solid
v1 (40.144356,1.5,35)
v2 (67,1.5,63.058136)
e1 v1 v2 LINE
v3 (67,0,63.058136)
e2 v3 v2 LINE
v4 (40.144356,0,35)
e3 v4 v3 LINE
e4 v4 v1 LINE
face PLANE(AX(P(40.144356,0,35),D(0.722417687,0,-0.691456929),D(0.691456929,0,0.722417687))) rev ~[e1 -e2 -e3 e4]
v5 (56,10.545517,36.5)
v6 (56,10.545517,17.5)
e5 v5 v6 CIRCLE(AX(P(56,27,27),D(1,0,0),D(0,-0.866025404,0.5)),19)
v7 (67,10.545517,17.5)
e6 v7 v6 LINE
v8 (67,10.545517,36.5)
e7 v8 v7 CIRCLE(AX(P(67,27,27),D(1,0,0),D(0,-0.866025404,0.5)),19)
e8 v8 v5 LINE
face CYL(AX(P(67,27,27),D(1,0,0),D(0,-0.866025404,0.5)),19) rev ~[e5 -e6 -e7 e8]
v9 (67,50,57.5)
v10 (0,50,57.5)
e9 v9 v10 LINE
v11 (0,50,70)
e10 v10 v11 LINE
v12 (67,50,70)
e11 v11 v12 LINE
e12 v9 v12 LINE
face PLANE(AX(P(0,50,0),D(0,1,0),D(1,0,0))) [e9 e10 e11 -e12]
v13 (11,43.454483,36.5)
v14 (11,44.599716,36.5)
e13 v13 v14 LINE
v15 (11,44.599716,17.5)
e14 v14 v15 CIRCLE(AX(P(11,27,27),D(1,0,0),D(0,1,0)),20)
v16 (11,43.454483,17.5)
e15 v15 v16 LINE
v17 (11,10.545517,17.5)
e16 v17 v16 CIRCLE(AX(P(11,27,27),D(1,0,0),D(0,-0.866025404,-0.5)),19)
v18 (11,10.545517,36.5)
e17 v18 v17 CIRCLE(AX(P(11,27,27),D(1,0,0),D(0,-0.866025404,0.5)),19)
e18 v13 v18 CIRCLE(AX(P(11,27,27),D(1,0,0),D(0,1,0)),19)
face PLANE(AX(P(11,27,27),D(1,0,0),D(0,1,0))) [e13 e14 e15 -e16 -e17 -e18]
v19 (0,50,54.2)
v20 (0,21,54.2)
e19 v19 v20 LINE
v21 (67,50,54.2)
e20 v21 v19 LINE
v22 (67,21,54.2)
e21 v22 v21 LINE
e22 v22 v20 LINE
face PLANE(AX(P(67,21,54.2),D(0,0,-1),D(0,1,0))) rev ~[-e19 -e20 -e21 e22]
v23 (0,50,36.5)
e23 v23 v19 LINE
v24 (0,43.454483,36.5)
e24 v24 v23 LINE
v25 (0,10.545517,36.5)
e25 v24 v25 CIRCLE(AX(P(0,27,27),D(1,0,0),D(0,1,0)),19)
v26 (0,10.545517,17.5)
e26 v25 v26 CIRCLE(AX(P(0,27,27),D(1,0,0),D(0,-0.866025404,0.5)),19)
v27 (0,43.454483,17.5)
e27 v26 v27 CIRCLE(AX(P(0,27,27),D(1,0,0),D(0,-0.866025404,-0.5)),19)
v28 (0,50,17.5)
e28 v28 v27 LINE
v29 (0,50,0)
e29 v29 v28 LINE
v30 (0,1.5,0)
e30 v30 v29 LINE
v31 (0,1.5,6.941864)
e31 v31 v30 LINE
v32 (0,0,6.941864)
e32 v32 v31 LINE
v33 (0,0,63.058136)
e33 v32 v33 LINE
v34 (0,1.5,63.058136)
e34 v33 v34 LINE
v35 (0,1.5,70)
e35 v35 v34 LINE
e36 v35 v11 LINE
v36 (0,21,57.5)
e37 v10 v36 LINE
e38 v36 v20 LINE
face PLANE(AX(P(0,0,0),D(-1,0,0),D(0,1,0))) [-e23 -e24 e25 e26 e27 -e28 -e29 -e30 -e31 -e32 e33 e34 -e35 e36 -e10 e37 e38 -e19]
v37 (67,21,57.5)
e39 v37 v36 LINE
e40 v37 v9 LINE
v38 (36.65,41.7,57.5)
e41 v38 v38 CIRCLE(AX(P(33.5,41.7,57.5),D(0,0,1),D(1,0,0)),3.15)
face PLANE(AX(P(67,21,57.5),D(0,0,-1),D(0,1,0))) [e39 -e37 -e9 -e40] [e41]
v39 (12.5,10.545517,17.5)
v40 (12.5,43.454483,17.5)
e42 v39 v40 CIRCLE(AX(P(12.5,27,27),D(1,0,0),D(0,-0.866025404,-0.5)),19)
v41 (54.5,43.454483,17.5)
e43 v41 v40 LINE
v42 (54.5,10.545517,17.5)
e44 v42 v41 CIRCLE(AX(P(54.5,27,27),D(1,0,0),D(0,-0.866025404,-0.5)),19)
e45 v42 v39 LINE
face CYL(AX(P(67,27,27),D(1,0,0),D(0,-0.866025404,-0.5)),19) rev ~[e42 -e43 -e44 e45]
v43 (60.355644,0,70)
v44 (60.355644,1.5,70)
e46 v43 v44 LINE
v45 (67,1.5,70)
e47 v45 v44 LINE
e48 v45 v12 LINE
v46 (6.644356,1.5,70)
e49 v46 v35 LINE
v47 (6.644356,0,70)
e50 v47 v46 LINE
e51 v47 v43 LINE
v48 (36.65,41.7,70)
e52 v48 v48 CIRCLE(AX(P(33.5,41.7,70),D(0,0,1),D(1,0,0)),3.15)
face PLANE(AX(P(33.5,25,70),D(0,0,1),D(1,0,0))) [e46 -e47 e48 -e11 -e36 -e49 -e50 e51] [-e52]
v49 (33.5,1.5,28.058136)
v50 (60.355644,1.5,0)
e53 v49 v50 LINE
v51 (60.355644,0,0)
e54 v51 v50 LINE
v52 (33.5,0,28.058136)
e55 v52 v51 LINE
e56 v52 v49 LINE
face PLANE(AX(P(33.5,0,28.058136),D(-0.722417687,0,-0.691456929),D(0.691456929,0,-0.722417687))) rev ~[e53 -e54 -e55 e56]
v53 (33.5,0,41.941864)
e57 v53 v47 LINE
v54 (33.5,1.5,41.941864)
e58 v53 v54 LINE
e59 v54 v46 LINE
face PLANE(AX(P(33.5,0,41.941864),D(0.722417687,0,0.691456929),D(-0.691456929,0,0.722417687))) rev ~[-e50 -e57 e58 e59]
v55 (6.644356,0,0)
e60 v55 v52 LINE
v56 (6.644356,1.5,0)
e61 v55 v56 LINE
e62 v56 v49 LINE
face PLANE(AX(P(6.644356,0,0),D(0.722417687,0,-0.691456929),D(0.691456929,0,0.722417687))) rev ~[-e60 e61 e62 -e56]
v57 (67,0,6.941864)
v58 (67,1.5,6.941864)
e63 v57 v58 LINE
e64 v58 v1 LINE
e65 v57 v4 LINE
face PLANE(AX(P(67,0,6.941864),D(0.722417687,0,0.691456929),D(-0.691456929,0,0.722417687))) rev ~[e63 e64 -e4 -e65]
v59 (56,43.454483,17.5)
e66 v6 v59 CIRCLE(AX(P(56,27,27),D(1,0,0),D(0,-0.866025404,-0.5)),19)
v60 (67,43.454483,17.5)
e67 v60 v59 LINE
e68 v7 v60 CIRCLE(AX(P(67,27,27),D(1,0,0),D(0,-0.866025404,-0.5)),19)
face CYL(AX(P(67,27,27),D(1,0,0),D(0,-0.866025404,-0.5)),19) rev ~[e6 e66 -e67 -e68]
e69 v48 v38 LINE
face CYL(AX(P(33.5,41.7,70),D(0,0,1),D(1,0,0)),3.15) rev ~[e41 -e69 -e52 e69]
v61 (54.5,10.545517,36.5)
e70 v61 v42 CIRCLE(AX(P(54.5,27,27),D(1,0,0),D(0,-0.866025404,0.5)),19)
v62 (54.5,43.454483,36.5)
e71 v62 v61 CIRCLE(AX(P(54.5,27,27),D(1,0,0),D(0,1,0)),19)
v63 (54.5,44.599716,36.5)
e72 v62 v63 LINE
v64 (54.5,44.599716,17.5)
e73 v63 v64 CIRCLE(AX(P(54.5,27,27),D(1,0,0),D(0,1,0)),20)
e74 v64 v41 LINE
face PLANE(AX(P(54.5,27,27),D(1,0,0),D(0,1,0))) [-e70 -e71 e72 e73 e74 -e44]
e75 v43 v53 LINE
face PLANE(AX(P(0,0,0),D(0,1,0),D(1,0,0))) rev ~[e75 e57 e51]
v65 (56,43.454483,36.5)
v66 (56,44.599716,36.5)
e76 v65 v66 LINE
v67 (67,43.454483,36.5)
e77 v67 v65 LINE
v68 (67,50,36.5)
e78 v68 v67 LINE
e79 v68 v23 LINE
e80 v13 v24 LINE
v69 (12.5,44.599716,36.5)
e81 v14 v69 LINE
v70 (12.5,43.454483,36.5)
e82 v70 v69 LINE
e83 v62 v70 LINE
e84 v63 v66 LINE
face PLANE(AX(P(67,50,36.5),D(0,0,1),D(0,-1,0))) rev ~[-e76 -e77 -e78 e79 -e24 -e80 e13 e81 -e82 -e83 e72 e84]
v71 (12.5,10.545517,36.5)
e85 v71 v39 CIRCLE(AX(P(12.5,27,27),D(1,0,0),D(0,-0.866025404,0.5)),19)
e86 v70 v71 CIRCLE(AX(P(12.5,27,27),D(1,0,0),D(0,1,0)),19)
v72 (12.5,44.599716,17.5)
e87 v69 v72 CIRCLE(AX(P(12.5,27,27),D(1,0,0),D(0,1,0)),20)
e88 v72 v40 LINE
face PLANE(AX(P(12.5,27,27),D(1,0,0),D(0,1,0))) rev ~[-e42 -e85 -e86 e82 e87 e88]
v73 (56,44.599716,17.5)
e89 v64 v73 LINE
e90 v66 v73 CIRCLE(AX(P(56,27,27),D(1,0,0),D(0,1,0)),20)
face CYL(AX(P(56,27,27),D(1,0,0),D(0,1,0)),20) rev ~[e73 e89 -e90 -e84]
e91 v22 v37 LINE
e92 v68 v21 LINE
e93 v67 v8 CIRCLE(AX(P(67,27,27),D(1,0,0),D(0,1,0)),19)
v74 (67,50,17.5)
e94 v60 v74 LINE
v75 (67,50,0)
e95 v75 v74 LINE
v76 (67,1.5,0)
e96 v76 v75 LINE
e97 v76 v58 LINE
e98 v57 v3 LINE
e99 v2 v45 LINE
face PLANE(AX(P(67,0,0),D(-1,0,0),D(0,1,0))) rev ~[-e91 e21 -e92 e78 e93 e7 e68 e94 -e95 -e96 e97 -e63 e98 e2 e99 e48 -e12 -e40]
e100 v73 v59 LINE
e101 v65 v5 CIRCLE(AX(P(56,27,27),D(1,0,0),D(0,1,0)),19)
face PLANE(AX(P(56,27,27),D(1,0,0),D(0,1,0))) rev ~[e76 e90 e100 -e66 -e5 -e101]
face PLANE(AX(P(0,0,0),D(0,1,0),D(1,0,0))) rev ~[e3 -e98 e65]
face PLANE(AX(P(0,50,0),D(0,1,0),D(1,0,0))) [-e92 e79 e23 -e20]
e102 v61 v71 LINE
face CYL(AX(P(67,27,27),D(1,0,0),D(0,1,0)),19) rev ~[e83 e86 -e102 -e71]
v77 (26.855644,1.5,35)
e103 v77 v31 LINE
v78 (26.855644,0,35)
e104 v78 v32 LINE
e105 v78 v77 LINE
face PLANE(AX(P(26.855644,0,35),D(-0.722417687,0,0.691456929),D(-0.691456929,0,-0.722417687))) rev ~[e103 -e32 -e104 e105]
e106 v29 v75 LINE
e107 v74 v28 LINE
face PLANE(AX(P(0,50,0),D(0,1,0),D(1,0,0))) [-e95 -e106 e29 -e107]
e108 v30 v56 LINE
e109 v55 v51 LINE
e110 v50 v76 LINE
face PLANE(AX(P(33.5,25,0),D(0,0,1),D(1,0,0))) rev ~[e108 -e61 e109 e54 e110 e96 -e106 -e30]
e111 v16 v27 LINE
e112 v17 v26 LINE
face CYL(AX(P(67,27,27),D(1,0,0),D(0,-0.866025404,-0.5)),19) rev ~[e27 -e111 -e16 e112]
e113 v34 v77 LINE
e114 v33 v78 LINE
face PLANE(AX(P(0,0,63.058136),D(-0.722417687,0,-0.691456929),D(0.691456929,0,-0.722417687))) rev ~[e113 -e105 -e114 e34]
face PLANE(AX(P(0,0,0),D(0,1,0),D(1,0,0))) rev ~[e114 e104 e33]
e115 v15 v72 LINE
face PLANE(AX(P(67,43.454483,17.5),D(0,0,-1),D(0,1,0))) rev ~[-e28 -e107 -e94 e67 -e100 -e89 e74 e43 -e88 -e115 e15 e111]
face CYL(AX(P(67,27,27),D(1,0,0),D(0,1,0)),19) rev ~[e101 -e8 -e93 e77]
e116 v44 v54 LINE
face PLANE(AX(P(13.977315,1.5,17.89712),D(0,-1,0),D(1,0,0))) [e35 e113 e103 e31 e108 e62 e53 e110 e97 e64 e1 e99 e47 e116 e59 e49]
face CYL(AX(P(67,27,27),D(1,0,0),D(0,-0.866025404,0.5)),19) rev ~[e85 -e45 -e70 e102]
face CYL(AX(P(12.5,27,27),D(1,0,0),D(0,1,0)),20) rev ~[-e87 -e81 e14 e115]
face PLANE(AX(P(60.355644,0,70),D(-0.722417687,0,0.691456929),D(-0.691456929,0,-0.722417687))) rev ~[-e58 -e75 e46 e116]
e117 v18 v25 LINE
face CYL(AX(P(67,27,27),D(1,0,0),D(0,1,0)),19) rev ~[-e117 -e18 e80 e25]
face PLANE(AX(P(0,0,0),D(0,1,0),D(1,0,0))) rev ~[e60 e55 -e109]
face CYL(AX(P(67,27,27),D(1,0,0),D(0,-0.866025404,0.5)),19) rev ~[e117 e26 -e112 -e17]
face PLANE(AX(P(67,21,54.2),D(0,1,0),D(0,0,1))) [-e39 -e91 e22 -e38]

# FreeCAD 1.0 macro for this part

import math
import FreeCAD as App
import Part
import Sketcher

V = App.Vector
Q = App.Units.Quantity


def add_polygon(sketch, points):
    """Adds a closed chain of lines whose ends are joined by coincident constraints."""
    first, n = sketch.GeometryCount, len(points)
    for a, b in zip(points, points[1:] + points[:1]):
        sketch.addGeometry(Part.LineSegment(App.Vector(*a, 0), App.Vector(*b, 0)), False)
    for i in range(n):
        sketch.addConstraint(Sketcher.Constraint("Coincident", first + i, 2, first + (i + 1) % n, 1))

doc = App.newDocument("Part")
body = doc.addObject("PartDesign::Body", "Body")

# Sketch on XY plane
sketch1 = body.newObject("Sketcher::SketchObject", "Sketch")
sketch1.AttachmentSupport = (doc.getObject("XY_Plane"), [""])
sketch1.MapMode = "FlatFace"
add_polygon(sketch1, [(0, 50), (0, 0), (67, 0), (67, 50)])  # lines 0-3
sketch1.addConstraint([
    Sketcher.Constraint("Vertical", 0),
    Sketcher.Constraint("Horizontal", 1),
    Sketcher.Constraint("Vertical", 2),
    Sketcher.Constraint("Horizontal", 3),
    Sketcher.Constraint("Coincident", 0, 2, -1, 1),
    Sketcher.Constraint("DistanceX", 1, 1, 1, 2, Q("67 mm")),
    Sketcher.Constraint("DistanceY", 0, 2, 0, 1, Q("50 mm")),
])
pad1 = body.newObject("PartDesign::Pad", "Pad")
pad1.Profile = sketch1
pad1.Length = 70

# Sketch on YZ plane
sketch2 = body.newObject("Sketcher::SketchObject", "Sketch001")
sketch2.AttachmentSupport = (doc.getObject("YZ_Plane"), [""])
sketch2.MapMode = "FlatFace"
sketch2.AttachmentOffset = App.Placement(V(0, 0, 67), App.Rotation())
add_polygon(sketch2, [(21, 57.5), (21, 54.2), (50, 54.2), (50, 57.5)])  # lines 0-3
sketch2.addConstraint([
    Sketcher.Constraint("Vertical", 0),
    Sketcher.Constraint("Horizontal", 1),
    Sketcher.Constraint("Vertical", 2),
    Sketcher.Constraint("Horizontal", 3),
    Sketcher.Constraint("DistanceX", 1, 1, 1, 2, Q("29 mm")),
    Sketcher.Constraint("DistanceY", 0, 2, 0, 1, Q("3.3 mm")),
    Sketcher.Constraint("DistanceX", -1, 1, 0, 2, Q("21 mm")),
    Sketcher.Constraint("DistanceY", -1, 1, 0, 2, Q("54.2 mm")),
])
pocket1 = body.newObject("PartDesign::Pocket", "Pocket")
pocket1.Profile = sketch2
pocket1.Type = "ThroughAll"

# Sketch on XY plane
sketch3 = body.newObject("Sketcher::SketchObject", "Sketch002")
sketch3.AttachmentSupport = (doc.getObject("XY_Plane"), [""])
sketch3.MapMode = "FlatFace"
sketch3.AttachmentOffset = App.Placement(V(0, 0, 70), App.Rotation())
sketch3.addGeometry(Part.Circle(V(33.5, 41.7, 0), V(0, 0, 1), 3.1), False)
sketch3.addConstraint([
    Sketcher.Constraint("Diameter", 0, Q("6.3 mm")),
    Sketcher.Constraint("DistanceX", -1, 1, 0, 3, Q("33.5 mm")),
    Sketcher.Constraint("DistanceY", -1, 1, 0, 3, Q("41.7 mm")),
])
pocket2 = body.newObject("PartDesign::Pocket", "Pocket001")
pocket2.Profile = sketch3
pocket2.Length = 12.5

# Sketch on XZ plane
sketch4 = body.newObject("Sketcher::SketchObject", "Sketch003")
sketch4.AttachmentSupport = (doc.getObject("XZ_Plane"), [""])
sketch4.MapMode = "FlatFace"
add_polygon(sketch4, [(0, 7), (0, 0), (7, 0), (34, 28), (60, 0), (67, 0), (67, 7), (40, 35), (67, 63), (67, 70), (60, 70), (34, 42), (7, 70), (0, 70), (0, 63), (27, 35)])  # lines 0-15
sketch4.addConstraint([
    Sketcher.Constraint("Vertical", 0),
    Sketcher.Constraint("Horizontal", 1),
    Sketcher.Constraint("Horizontal", 4),
    Sketcher.Constraint("Vertical", 5),
    Sketcher.Constraint("Vertical", 8),
    Sketcher.Constraint("Horizontal", 9),
    Sketcher.Constraint("Horizontal", 12),
    Sketcher.Constraint("Vertical", 13),
    Sketcher.Constraint("Coincident", 0, 2, -1, 1),
    Sketcher.Constraint("PointOnObject", 3, 2, -1),
    Sketcher.Constraint("PointOnObject", 12, 2, -2),
    Sketcher.Constraint("Parallel", 3, 6),
    Sketcher.Constraint("Parallel", 2, 7),
    Sketcher.Constraint("Parallel", 7, 10),
    Sketcher.Constraint("Parallel", 6, 11),
    Sketcher.Constraint("Parallel", 11, 14),
    Sketcher.Constraint("Parallel", 10, 15),
    Sketcher.Constraint("Horizontal", 9, 2, 11, 2),
    Sketcher.Constraint("Horizontal", 7, 2, 13, 2),
    Sketcher.Constraint("Horizontal", 6, 2, 14, 2),
    Sketcher.Constraint("Horizontal", 5, 2, 15, 2),
    Sketcher.Constraint("Vertical", 5, 2, 7, 2),
    Sketcher.Constraint("Vertical", 3, 2, 9, 2),
    Sketcher.Constraint("Vertical", 2, 2, 10, 2),
    Sketcher.Constraint("Equal", 1, 4),
    Sketcher.Constraint("Equal", 5, 8),
    Sketcher.Constraint("Equal", 3, 6),
    Sketcher.Constraint("DistanceX", -1, 1, 4, 2, Q("67 mm")),
    Sketcher.Constraint("DistanceY", -1, 1, 6, 2, Q("35 mm")),
    Sketcher.Constraint("DistanceX", 1, 1, 1, 2, Q("6.644356 mm")),
    Sketcher.Constraint("DistanceY", 0, 2, 0, 1, Q("6.941864 mm")),
])
pocket3 = body.newObject("PartDesign::Pocket", "Pocket002")
pocket3.Profile = sketch4
pocket3.Length = 1.5

# Sketch on YZ plane
sketch5 = body.newObject("Sketcher::SketchObject", "Sketch004")
sketch5.AttachmentSupport = (doc.getObject("YZ_Plane"), [""])
sketch5.MapMode = "FlatFace"
sketch5.AttachmentOffset = App.Placement(V(0, 0, 67), App.Rotation())
sketch5.addGeometry([
    Part.ArcOfCircle(Part.Circle(V(27, 27, 0), V(0, 0, 1), 19), math.radians(150), math.radians(210)),  # 0
    Part.ArcOfCircle(Part.Circle(V(27, 27, 0), V(0, 0, 1), 19), math.radians(-150), math.radians(-30)),  # 1
    Part.LineSegment(V(43, 18, 0), V(50, 18, 0)),  # 2
    Part.LineSegment(V(50, 18, 0), V(50, 36, 0)),  # 3
    Part.LineSegment(V(50, 36, 0), V(43, 36, 0)),  # 4
    Part.ArcOfCircle(Part.Circle(V(27, 27, 0), V(0, 0, 1), 19), math.radians(30), math.radians(150)),  # 5
], False)
sketch5.addConstraint([
    Sketcher.Constraint("Tangent", 0, 2, 1, 1),
    Sketcher.Constraint("Coincident", 1, 2, 2, 1),
    Sketcher.Constraint("Coincident", 2, 2, 3, 1),
    Sketcher.Constraint("Coincident", 3, 2, 4, 1),
    Sketcher.Constraint("Coincident", 4, 2, 5, 1),
    Sketcher.Constraint("Tangent", 5, 2, 0, 1),
    Sketcher.Constraint("Horizontal", 2),
    Sketcher.Constraint("Vertical", 3),
    Sketcher.Constraint("Horizontal", 4),
    Sketcher.Constraint("Equal", 0, 1),
    Sketcher.Constraint("Equal", 1, 5),
    Sketcher.Constraint("Horizontal", 0, 2, 1, 2),
    Sketcher.Constraint("Horizontal", 4, 2, 5, 2),
    Sketcher.Constraint("Vertical", 1, 2, 4, 2),
    Sketcher.Constraint("Radius", 0, Q("19 mm")),
    Sketcher.Constraint("DistanceY", 3, 1, 3, 2, Q("19 mm")),
    Sketcher.Constraint("DistanceX", -1, 1, 0, 3, Q("27 mm")),
    Sketcher.Constraint("DistanceY", -1, 1, 0, 3, Q("27 mm")),
    Sketcher.Constraint("DistanceX", -1, 1, 2, 2, Q("50 mm")),
])
pocket4 = body.newObject("PartDesign::Pocket", "Pocket003")
pocket4.Profile = sketch5
pocket4.Type = "ThroughAll"

# Sketch on YZ plane
sketch6 = body.newObject("Sketcher::SketchObject", "Sketch005")
sketch6.AttachmentSupport = (doc.getObject("YZ_Plane"), [""])
sketch6.MapMode = "FlatFace"
sketch6.AttachmentOffset = App.Placement(V(0, 0, 56), App.Rotation())
sketch6.addGeometry(Part.Circle(V(27, 27, 0), V(0, 0, 1), 20), False)
sketch6.addConstraint([
    Sketcher.Constraint("Diameter", 0, Q("40 mm")),
    Sketcher.Constraint("DistanceX", -1, 1, 0, 3, Q("27 mm")),
    Sketcher.Constraint("DistanceY", -1, 1, 0, 3, Q("27 mm")),
])
pocket5 = body.newObject("PartDesign::Pocket", "Pocket004")
pocket5.Profile = sketch6
pocket5.Length = 1.5

# Sketch on YZ plane
sketch7 = body.newObject("Sketcher::SketchObject", "Sketch006")
sketch7.AttachmentSupport = (doc.getObject("YZ_Plane"), [""])
sketch7.MapMode = "FlatFace"
sketch7.AttachmentOffset = App.Placement(V(0, 0, 12.5), App.Rotation())
sketch7.addGeometry(Part.Circle(V(27, 27, 0), V(0, 0, 1), 20), False)
sketch7.addConstraint([
    Sketcher.Constraint("Diameter", 0, Q("40 mm")),
    Sketcher.Constraint("DistanceX", -1, 1, 0, 3, Q("27 mm")),
    Sketcher.Constraint("DistanceY", -1, 1, 0, 3, Q("27 mm")),
])
pocket6 = body.newObject("PartDesign::Pocket", "Pocket005")
pocket6.Profile = sketch7
pocket6.Length = 1.5

doc.recompute()
